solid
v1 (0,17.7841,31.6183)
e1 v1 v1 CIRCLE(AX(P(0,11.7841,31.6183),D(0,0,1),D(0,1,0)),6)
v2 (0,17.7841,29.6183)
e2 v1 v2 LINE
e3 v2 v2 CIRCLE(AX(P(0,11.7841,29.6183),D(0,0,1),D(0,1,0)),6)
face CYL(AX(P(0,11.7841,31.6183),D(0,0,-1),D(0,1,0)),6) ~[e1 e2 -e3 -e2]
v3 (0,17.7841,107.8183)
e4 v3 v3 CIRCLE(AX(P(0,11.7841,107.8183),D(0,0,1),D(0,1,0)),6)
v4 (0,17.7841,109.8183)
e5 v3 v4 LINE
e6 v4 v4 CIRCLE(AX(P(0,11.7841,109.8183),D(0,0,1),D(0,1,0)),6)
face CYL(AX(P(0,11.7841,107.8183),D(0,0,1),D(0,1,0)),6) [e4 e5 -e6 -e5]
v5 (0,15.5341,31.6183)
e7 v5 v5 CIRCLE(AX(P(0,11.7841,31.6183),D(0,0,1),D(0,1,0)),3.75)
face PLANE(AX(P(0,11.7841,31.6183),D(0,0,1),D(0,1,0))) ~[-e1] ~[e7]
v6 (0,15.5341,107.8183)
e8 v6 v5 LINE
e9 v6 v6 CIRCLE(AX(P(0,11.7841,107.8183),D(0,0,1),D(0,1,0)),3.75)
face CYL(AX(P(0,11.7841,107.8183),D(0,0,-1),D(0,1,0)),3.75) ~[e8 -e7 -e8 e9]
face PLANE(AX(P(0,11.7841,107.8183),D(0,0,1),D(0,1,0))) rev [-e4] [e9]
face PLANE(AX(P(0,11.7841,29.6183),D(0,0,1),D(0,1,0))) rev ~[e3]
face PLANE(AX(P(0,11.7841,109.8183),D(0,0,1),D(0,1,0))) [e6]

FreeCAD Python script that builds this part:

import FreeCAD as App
import Part
import Sketcher

V = App.Vector
Q = App.Units.Quantity


def add_polygon(sketch, points):
    """Adds a closed chain of lines whose ends are joined by coincident constraints."""
    first, n = sketch.GeometryCount, len(points)
    for a, b in zip(points, points[1:] + points[:1]):
        sketch.addGeometry(Part.LineSegment(App.Vector(*a, 0), App.Vector(*b, 0)), False)
    for i in range(n):
        sketch.addConstraint(Sketcher.Constraint("Coincident", first + i, 2, first + (i + 1) % n, 1))

doc = App.newDocument("Part")
body = doc.addObject("PartDesign::Body", "Body")

# Sketch on YZ plane
sketch1 = body.newObject("Sketcher::SketchObject", "Sketch")
sketch1.AttachmentSupport = (doc.getObject("YZ_Plane"), [""])
sketch1.MapMode = "FlatFace"
add_polygon(sketch1, [(11.8, 109.8), (11.8, 29.6), (17.8, 29.6), (17.8, 31.6), (15.5, 31.6), (15.5, 107.8), (17.8, 107.8), (17.8, 109.8)])  # lines 0-7
sketch1.addGeometry(Part.LineSegment(V(11.8, 29.6, 0), V(11.8, 109.8, 0)), True)  # axis
sketch1.addConstraint(Sketcher.Constraint("Vertical", 0))
sketch1.addConstraint(Sketcher.Constraint("Horizontal", 1))
sketch1.addConstraint(Sketcher.Constraint("Vertical", 2))
sketch1.addConstraint(Sketcher.Constraint("Horizontal", 3))
sketch1.addConstraint(Sketcher.Constraint("Vertical", 4))
sketch1.addConstraint(Sketcher.Constraint("Horizontal", 5))
sketch1.addConstraint(Sketcher.Constraint("Vertical", 6))
sketch1.addConstraint(Sketcher.Constraint("Horizontal", 7))
sketch1.addConstraint(Sketcher.Constraint("Vertical", 8))
sketch1.addConstraint(Sketcher.Constraint("Coincident", 8, 1, 0, 2))
sketch1.addConstraint(Sketcher.Constraint("Horizontal", 6, 2, 8, 2))
sketch1.addConstraint(Sketcher.Constraint("Vertical", 2, 2, 5, 2))
sketch1.addConstraint(Sketcher.Constraint("Equal", 2, 6))
sketch1.addConstraint(Sketcher.Constraint("DistanceX", 1, 1, 1, 2, Q("6 mm")))
sketch1.addConstraint(Sketcher.Constraint("DistanceY", 2, 1, 2, 2, Q("2 mm")))
sketch1.addConstraint(Sketcher.Constraint("DistanceY", 4, 1, 4, 2, Q("76.2 mm")))
sketch1.addConstraint(Sketcher.Constraint("DistanceX", 0, 2, 3, 2, Q("3.75 mm")))
sketch1.addConstraint(Sketcher.Constraint("DistanceX", -1, 1, 0, 2, Q("11.784 mm")))
sketch1.addConstraint(Sketcher.Constraint("DistanceY", -1, 1, 0, 2, Q("29.6183 mm")))
revolution = body.newObject("PartDesign::Revolution", "Revolution")
revolution.Profile = sketch1
revolution.ReferenceAxis = (sketch1, ["Axis0"])
revolution.Angle = 360

doc.recompute()
